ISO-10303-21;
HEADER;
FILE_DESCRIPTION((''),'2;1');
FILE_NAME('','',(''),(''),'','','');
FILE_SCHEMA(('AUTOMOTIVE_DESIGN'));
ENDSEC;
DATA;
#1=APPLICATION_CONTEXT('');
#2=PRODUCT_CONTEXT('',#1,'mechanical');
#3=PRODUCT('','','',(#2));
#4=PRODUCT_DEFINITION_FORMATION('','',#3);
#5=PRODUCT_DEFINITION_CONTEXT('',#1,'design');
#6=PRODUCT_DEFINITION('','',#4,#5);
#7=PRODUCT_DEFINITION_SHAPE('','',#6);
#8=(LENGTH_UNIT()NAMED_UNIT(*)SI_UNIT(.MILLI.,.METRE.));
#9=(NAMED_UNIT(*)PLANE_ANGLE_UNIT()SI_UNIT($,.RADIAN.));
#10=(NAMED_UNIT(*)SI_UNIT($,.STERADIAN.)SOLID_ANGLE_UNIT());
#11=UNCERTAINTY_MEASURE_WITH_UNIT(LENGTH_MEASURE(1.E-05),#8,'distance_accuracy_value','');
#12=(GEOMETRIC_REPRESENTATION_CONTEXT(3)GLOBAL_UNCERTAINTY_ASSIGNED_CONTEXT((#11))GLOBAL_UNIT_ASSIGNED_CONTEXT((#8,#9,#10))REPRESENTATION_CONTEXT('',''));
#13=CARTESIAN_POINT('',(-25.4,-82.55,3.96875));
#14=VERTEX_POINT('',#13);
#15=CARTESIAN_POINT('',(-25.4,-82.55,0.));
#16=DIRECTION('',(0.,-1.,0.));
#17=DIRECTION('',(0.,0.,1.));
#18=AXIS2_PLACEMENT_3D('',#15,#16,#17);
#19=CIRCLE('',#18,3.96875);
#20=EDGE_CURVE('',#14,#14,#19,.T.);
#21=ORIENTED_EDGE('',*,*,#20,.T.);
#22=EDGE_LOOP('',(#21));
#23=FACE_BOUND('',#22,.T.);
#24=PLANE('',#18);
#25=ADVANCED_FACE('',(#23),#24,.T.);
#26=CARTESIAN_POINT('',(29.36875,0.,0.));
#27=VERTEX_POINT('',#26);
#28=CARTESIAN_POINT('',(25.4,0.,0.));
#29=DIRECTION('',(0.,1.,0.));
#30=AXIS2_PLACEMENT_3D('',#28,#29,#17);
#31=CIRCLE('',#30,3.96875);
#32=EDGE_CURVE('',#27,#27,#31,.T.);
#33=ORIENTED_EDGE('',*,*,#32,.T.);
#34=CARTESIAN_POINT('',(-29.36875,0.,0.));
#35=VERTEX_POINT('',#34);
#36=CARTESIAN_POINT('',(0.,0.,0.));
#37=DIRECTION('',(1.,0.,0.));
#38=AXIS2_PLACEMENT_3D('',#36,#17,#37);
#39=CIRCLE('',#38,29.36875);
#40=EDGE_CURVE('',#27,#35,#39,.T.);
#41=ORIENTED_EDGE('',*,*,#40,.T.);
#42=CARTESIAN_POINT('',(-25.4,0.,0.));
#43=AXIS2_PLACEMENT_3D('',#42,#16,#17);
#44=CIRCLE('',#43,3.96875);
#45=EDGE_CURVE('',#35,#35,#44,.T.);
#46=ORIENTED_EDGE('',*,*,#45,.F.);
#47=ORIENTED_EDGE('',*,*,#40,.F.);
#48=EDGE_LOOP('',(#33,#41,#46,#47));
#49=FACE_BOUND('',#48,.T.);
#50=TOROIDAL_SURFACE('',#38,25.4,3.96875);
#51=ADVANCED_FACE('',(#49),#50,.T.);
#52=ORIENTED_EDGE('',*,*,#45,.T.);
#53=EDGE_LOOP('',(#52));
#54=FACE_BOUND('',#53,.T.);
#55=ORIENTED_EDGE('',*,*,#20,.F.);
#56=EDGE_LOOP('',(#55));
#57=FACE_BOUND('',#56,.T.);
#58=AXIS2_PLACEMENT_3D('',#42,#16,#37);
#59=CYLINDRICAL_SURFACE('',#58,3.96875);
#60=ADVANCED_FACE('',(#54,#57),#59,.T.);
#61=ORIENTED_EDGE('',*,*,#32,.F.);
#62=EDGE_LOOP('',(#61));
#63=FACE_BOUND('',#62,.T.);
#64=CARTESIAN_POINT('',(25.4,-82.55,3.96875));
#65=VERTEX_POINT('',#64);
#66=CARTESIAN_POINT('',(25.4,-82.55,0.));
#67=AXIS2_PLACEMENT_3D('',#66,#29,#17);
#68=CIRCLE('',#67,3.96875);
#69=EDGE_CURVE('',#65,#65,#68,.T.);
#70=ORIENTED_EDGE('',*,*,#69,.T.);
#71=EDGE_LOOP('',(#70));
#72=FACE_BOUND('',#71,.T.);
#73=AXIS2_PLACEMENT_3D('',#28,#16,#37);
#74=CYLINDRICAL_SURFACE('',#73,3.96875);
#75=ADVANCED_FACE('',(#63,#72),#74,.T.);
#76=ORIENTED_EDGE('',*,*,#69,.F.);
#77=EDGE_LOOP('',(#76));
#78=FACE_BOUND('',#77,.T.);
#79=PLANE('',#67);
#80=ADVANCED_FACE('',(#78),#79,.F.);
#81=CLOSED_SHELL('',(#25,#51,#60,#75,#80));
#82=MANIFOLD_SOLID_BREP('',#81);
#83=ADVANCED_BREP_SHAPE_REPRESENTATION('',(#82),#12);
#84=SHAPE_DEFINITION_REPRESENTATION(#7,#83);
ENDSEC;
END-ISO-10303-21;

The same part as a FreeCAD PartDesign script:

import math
import FreeCAD as App
import Part
import Sketcher
Q = App.Units.Quantity

doc = App.newDocument("Part")
body = doc.addObject("PartDesign::Body", "Body")

# Sketch on XZ plane
sketch1 = body.newObject("Sketcher::SketchObject", "Sketch")
sketch1.AttachmentSupport = (doc.getObject("XZ_Plane"), [""])
sketch1.MapMode = "FlatFace"
sketch1.AttachmentOffset = App.Placement(App.Vector(0, 0, 3.25 * 25.4), App.Rotation())
sketch1.addGeometry(Part.Circle(App.Vector(25.4, 0, 0), App.Vector(0, 0, 1), 4), False)
sketch1.addConstraint([
    Sketcher.Constraint("PointOnObject", 0, 3, -1),
    Sketcher.Constraint("Diameter", 0, Q("0.3125 in")),
    Sketcher.Constraint("DistanceX", -1, 1, 0, 3, Q("1 in")),
])

# Sketch on XY plane
sketch2 = body.newObject("Sketcher::SketchObject", "Sketch001")
sketch2.AttachmentSupport = (doc.getObject("XY_Plane"), [""])
sketch2.MapMode = "FlatFace"
sketch2.addGeometry([
    Part.LineSegment(App.Vector(-25, -83, 0), App.Vector(-25, 0, 0)),
    Part.ArcOfCircle(Part.Circle(App.Vector(0, 0, 0), App.Vector(0, 0, 1), 25), math.radians(0), math.radians(180)),
    Part.LineSegment(App.Vector(25, 0, 0), App.Vector(25, -83, 0)),
], False)
sketch2.addConstraint([
    Sketcher.Constraint("Tangent", 0, 2, 1, 2),
    Sketcher.Constraint("Tangent", 1, 1, 2, 1),
    Sketcher.Constraint("Vertical", 0),
    Sketcher.Constraint("Vertical", 2),
    Sketcher.Constraint("Coincident", 1, 3, -1, 1),
    Sketcher.Constraint("Horizontal", 0, 1, 2, 2),
    Sketcher.Constraint("Radius", 1, Q("1 in")),
    Sketcher.Constraint("DistanceY", 0, 1, 0, 2, Q("3.25 in")),
])
doc.recompute()

additivepipe = body.newObject("PartDesign::AdditivePipe", "AdditivePipe")
additivepipe.Profile = sketch1
additivepipe.Spine = (sketch2, ["Edge1", "Edge2", "Edge3"])

doc.recompute()
